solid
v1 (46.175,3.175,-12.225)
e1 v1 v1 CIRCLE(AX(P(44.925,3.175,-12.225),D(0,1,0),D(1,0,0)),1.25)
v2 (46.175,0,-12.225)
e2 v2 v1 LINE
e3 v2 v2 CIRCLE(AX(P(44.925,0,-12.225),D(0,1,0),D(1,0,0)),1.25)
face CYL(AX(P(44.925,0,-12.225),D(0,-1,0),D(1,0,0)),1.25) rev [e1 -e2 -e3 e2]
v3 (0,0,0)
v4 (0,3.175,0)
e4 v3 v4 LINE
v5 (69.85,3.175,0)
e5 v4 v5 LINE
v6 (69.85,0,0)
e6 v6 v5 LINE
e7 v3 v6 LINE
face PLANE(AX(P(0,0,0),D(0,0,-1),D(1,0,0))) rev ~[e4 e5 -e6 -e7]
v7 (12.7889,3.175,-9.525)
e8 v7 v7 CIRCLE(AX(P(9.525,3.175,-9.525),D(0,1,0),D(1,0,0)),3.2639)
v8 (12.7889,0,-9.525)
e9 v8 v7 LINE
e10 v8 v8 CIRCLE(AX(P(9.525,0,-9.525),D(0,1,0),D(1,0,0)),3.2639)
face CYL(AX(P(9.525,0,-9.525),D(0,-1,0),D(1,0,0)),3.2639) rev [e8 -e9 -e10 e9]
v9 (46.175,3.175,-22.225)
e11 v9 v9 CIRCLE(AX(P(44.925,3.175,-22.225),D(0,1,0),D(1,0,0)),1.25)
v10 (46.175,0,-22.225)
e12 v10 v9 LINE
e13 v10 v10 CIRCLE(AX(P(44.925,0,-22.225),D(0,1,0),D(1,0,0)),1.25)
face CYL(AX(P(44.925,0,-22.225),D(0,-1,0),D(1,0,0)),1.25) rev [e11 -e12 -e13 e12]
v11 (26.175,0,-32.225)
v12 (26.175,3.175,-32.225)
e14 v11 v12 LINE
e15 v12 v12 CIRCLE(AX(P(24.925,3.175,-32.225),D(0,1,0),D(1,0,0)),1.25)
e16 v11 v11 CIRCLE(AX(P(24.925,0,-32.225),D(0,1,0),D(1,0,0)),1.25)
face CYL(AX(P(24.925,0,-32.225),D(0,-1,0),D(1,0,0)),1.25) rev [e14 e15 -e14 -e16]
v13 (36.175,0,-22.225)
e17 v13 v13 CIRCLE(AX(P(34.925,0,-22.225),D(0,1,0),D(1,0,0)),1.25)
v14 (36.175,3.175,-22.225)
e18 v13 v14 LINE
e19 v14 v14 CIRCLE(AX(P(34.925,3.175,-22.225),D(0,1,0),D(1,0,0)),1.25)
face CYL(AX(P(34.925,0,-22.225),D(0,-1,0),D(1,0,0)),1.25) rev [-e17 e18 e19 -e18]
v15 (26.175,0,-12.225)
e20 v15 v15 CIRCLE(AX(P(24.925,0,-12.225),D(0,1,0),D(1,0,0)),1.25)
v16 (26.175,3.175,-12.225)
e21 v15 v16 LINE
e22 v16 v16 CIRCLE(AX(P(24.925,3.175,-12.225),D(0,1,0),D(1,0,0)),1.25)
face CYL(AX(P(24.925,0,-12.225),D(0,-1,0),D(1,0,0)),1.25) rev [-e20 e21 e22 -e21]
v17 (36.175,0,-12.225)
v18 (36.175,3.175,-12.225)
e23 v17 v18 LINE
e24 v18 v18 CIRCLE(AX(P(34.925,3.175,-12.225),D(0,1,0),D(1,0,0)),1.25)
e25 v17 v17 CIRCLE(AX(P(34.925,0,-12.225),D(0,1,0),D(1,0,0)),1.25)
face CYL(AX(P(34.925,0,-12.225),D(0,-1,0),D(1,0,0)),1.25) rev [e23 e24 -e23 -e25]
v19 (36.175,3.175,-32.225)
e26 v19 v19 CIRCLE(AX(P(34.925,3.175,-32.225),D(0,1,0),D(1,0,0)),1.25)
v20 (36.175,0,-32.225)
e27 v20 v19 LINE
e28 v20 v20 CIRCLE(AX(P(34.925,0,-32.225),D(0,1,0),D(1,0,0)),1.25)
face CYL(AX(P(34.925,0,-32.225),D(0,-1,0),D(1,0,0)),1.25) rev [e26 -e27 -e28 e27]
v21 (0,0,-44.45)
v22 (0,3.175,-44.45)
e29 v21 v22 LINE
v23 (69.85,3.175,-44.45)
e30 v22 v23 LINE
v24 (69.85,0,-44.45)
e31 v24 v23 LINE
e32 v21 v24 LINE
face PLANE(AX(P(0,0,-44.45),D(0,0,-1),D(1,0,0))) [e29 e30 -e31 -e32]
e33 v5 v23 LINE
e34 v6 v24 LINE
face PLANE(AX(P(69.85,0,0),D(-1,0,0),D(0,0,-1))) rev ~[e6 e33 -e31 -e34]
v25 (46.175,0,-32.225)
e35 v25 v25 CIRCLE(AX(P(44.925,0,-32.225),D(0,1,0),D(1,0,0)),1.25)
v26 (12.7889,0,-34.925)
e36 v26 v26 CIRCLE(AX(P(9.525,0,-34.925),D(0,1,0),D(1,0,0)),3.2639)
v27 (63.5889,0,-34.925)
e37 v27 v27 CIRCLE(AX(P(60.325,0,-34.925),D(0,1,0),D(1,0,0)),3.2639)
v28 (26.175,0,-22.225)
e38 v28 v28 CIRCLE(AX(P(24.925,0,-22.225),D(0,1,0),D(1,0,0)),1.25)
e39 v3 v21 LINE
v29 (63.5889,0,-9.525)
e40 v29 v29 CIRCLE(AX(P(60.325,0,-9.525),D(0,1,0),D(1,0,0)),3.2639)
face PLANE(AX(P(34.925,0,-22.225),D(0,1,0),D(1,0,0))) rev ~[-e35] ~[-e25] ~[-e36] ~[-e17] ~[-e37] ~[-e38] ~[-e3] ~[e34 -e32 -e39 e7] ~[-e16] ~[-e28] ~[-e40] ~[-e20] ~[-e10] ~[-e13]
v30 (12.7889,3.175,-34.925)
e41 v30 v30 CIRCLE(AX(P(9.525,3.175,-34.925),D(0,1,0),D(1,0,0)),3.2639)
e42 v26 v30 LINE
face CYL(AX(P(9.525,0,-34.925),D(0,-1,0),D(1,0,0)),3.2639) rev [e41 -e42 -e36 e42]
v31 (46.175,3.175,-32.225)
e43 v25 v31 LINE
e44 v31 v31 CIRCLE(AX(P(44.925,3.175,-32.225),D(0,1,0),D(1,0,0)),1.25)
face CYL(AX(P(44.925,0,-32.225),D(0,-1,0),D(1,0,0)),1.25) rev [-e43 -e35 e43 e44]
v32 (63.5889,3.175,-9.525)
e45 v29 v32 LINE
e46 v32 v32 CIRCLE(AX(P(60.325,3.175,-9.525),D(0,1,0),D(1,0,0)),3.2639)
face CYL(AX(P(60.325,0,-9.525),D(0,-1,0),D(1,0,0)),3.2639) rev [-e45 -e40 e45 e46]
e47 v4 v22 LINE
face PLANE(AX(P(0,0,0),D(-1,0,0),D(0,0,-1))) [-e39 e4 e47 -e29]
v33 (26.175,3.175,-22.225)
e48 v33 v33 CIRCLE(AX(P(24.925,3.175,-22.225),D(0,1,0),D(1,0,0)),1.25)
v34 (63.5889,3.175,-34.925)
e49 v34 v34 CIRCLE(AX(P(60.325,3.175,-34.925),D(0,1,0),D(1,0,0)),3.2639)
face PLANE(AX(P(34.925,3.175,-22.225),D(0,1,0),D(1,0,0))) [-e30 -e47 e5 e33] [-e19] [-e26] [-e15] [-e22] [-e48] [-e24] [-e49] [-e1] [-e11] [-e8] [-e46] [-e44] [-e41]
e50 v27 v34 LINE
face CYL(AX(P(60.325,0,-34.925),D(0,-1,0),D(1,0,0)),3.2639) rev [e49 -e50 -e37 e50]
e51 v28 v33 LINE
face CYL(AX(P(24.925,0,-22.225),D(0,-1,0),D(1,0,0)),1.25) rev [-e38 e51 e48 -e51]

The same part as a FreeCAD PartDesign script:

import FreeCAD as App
import Part
import Sketcher
Q = App.Units.Quantity

doc = App.newDocument("Part")
body = doc.addObject("PartDesign::Body", "Body")

sketch1 = body.newObject("Sketcher::SketchObject", "Sketch")
sketch1.AttachmentSupport = (doc.getObject("XZ_Plane"), [""])
sketch1.MapMode = "FlatFace"
sketch1.addGeometry([
    Part.LineSegment(App.Vector(0, -44.5, 0), App.Vector(0, 0, 0)),
    Part.LineSegment(App.Vector(0, 0, 0), App.Vector(69.8, 0, 0)),
    Part.LineSegment(App.Vector(69.8, 0, 0), App.Vector(69.8, -44.5, 0)),
    Part.LineSegment(App.Vector(69.8, -44.5, 0), App.Vector(0, -44.5, 0)),
    Part.Circle(App.Vector(9.5, -9.5, 0), App.Vector(0, 0, 1), 3.3),
    Part.Circle(App.Vector(24.9, -12.2, 0), App.Vector(0, 0, 1), 1.2),
    Part.Circle(App.Vector(34.9, -12.2, 0), App.Vector(0, 0, 1), 1.2),
    Part.Circle(App.Vector(44.9, -12.2, 0), App.Vector(0, 0, 1), 1.2),
    Part.Circle(App.Vector(60.3, -9.5, 0), App.Vector(0, 0, 1), 3.3),
    Part.Circle(App.Vector(24.9, -22.2, 0), App.Vector(0, 0, 1), 1.2),
    Part.Circle(App.Vector(34.9, -22.2, 0), App.Vector(0, 0, 1), 1.2),
    Part.Circle(App.Vector(9.5, -34.9, 0), App.Vector(0, 0, 1), 3.3),
    Part.Circle(App.Vector(24.9, -32.2, 0), App.Vector(0, 0, 1), 1.2),
    Part.Circle(App.Vector(34.9, -32.2, 0), App.Vector(0, 0, 1), 1.2),
    Part.Circle(App.Vector(44.9, -22.2, 0), App.Vector(0, 0, 1), 1.2),
    Part.Circle(App.Vector(44.9, -32.2, 0), App.Vector(0, 0, 1), 1.2),
    Part.Circle(App.Vector(60.3, -34.9, 0), App.Vector(0, 0, 1), 3.3),
], False)
sketch1.addConstraint([
    Sketcher.Constraint("Coincident", 0, 2, 1, 1),
    Sketcher.Constraint("Coincident", 1, 2, 2, 1),
    Sketcher.Constraint("Coincident", 2, 2, 3, 1),
    Sketcher.Constraint("Coincident", 3, 2, 0, 1),
    Sketcher.Constraint("Vertical", 0),
    Sketcher.Constraint("Horizontal", 1),
    Sketcher.Constraint("Vertical", 2),
    Sketcher.Constraint("Horizontal", 3),
    Sketcher.Constraint("Coincident", 0, 2, -1, 1),
    Sketcher.Constraint("Equal", 5, 6),
    Sketcher.Constraint("Equal", 6, 7),
    Sketcher.Constraint("Equal", 4, 8),
    Sketcher.Constraint("Equal", 7, 9),
    Sketcher.Constraint("Equal", 9, 10),
    Sketcher.Constraint("Equal", 8, 11),
    Sketcher.Constraint("Equal", 10, 12),
    Sketcher.Constraint("Equal", 12, 13),
    Sketcher.Constraint("Equal", 13, 14),
    Sketcher.Constraint("Equal", 14, 15),
    Sketcher.Constraint("Equal", 11, 16),
    Sketcher.Constraint("Horizontal", 5, 3, 6, 3),
    Sketcher.Constraint("Horizontal", 6, 3, 7, 3),
    Sketcher.Constraint("Horizontal", 4, 3, 8, 3),
    Sketcher.Constraint("Horizontal", 9, 3, 10, 3),
    Sketcher.Constraint("Horizontal", 12, 3, 13, 3),
    Sketcher.Constraint("Horizontal", 10, 3, 14, 3),
    Sketcher.Constraint("Horizontal", 13, 3, 15, 3),
    Sketcher.Constraint("Horizontal", 11, 3, 16, 3),
    Sketcher.Constraint("Vertical", 5, 3, 9, 3),
    Sketcher.Constraint("Vertical", 6, 3, 10, 3),
    Sketcher.Constraint("Vertical", 4, 3, 11, 3),
    Sketcher.Constraint("Vertical", 9, 3, 12, 3),
    Sketcher.Constraint("Vertical", 10, 3, 13, 3),
    Sketcher.Constraint("Vertical", 7, 3, 14, 3),
    Sketcher.Constraint("Vertical", 14, 3, 15, 3),
    Sketcher.Constraint("Vertical", 8, 3, 16, 3),
    Sketcher.Constraint("Diameter", 4, Q("0.257 in")),
    Sketcher.Constraint("DistanceX", 4, 3, 6, 3, Q("1 in")),
    Sketcher.Constraint("DistanceX", 6, 3, 8, 3, Q("1 in")),
    Sketcher.Constraint("DistanceY", 11, 3, 4, 3, Q("1 in")),
    Sketcher.Constraint("DistanceX", 1, 1, 1, 2, Q("2.75 in")),
    Sketcher.Constraint("DistanceY", 0, 1, 0, 2, Q("1.75 in")),
    Sketcher.Constraint("DistanceY", 9, 3, 4, 3, Q("0.5 in")),
    Sketcher.Constraint("Diameter", 5, Q("2.5 mm")),
    Sketcher.Constraint("DistanceX", -1, 1, 4, 3, Q("0.375 in")),
    Sketcher.Constraint("DistanceY", 4, 3, -1, 1, Q("0.375 in")),
    Sketcher.Constraint("DistanceX", -1, 1, 5, 3, Q("24.925 mm")),
    Sketcher.Constraint("DistanceY", 5, 3, -1, 1, Q("12.225 mm")),
    Sketcher.Constraint("DistanceX", -1, 1, 7, 3, Q("44.925 mm")),
    Sketcher.Constraint("DistanceY", 12, 3, -1, 1, Q("32.225 mm")),
])
pad1 = body.newObject("PartDesign::Pad", "Pad")
pad1.Profile = sketch1
pad1.Length = Q("0.125 in")
pad1.Reversed = True

doc.recompute()
